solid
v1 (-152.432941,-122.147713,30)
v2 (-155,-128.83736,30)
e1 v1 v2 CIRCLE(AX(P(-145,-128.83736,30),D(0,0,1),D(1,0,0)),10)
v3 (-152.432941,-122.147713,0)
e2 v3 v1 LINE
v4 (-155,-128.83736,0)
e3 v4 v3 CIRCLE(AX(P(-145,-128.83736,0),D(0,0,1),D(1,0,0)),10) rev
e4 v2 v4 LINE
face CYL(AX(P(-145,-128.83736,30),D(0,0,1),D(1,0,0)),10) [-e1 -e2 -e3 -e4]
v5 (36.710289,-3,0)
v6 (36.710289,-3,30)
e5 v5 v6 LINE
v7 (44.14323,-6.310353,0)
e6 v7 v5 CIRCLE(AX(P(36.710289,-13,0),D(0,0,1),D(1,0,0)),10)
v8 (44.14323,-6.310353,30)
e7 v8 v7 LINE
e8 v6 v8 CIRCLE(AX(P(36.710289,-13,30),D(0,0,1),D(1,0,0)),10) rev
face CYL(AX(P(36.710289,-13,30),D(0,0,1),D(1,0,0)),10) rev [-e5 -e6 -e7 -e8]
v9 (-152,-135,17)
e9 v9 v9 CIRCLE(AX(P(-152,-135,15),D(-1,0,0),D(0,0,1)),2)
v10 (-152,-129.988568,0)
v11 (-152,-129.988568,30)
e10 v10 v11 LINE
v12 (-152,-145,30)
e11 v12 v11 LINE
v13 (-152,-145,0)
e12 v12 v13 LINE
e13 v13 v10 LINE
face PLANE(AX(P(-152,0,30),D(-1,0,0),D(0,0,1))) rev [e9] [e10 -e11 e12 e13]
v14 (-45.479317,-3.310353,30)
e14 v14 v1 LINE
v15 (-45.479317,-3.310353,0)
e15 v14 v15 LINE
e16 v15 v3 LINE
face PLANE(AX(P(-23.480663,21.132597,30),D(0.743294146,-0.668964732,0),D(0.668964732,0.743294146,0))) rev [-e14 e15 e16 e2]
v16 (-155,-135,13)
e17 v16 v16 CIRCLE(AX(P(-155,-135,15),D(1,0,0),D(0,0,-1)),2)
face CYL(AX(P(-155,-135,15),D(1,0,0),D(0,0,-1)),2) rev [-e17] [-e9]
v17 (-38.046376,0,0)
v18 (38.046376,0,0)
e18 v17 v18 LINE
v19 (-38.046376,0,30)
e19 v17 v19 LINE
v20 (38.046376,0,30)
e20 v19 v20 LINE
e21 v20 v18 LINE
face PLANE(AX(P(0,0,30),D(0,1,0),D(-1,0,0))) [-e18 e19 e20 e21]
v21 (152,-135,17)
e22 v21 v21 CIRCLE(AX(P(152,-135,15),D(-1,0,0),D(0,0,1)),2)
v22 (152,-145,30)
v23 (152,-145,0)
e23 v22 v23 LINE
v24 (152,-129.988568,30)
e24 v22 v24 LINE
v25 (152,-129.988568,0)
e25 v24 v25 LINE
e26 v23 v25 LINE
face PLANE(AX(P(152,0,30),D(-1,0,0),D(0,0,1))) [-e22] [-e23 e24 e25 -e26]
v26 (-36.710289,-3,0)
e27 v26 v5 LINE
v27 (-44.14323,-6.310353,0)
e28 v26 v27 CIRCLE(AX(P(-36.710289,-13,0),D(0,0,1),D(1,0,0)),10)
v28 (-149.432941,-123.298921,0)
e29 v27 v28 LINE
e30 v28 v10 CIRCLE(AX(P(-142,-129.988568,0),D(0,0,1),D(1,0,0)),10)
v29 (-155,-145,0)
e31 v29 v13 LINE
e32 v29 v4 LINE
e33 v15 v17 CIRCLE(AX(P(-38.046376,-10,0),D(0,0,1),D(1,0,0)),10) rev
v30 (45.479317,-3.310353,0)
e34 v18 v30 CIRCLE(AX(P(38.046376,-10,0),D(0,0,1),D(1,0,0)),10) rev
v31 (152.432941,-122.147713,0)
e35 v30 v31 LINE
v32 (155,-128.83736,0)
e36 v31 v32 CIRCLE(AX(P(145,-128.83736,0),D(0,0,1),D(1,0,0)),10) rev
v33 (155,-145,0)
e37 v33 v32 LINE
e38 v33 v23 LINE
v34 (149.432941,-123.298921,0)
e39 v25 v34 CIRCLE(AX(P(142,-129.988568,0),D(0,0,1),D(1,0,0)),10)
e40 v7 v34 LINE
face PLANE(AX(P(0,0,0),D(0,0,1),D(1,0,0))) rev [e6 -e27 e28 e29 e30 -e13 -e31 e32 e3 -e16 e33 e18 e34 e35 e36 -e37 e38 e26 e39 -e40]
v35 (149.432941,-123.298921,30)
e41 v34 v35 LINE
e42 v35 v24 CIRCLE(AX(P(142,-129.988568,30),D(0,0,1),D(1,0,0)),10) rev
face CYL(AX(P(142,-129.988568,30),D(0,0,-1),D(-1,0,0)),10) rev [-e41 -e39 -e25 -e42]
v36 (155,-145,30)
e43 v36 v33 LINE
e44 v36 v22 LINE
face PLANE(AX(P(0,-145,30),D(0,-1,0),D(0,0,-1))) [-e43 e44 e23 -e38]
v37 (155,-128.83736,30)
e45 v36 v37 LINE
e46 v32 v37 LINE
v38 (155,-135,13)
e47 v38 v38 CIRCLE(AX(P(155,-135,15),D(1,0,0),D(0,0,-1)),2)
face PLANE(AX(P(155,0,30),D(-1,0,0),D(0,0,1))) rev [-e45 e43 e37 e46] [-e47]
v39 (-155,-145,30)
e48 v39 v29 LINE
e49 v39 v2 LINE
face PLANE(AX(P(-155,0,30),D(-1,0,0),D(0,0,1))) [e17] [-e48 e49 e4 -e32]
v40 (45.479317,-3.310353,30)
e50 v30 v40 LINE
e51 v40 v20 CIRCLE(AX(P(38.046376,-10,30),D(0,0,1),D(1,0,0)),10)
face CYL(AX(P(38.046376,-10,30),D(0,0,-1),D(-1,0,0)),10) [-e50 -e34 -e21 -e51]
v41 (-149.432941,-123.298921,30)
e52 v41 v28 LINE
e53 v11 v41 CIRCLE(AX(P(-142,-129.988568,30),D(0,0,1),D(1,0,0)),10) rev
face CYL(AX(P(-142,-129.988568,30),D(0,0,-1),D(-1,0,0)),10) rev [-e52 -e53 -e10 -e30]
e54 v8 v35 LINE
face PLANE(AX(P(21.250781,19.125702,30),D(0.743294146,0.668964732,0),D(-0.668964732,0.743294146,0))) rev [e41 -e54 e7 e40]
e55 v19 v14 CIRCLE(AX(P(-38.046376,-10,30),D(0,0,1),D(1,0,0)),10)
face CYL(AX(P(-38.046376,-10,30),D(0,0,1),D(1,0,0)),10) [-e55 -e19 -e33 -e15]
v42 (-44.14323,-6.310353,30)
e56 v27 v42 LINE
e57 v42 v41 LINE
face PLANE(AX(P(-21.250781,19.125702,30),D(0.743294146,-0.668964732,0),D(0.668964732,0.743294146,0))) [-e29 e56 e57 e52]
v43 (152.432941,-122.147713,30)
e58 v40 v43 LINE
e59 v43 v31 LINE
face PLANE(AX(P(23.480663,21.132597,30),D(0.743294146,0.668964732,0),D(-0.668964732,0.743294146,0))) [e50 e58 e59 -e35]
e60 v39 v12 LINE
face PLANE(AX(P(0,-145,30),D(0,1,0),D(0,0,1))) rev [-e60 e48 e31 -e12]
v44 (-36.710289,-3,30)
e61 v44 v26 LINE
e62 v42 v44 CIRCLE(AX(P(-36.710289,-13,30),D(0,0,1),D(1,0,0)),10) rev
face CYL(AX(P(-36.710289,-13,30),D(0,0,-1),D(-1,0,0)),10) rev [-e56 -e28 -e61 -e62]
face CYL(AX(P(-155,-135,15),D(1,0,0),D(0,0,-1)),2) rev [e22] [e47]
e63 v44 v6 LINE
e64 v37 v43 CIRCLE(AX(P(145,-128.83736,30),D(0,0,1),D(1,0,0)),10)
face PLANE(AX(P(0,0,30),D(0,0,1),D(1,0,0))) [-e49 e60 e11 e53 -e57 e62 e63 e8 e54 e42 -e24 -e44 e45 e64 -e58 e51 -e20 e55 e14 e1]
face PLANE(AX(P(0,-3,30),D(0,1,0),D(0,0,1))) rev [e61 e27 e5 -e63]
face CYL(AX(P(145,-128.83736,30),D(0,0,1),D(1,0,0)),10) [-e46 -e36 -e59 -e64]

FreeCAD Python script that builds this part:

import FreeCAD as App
import Part
import Sketcher


def edges_at(feature, points):
    """Names of the edges that pass closest to the given points."""
    edges = feature.Shape.Edges
    near = lambda p: min(range(len(edges)), key=lambda i: edges[i].distToShape(Part.Vertex(*p))[0])
    return sorted({f"Edge{near(p) + 1}" for p in points})

doc = App.newDocument("Part")
params = doc.addObject("Spreadsheet::Sheet", "Params")
for row, (alias, value) in enumerate([
    ("sketch1_width", "3 mm"),
    ("sketch1_width2", "85 mm"),
    ("sketch1_height", "20 mm"),
    ("pad1_length", "30 mm"),
    ("fillet_radius", "10 mm"),
    ("sketch2_diameter", "4 mm"),
], start=1):
    params.set(f"A{row}", alias)
    params.set(f"B{row}", "=" + value)
    params.setAlias(f"B{row}", alias)

body = doc.addObject("PartDesign::Body", "Body")

sketch1 = doc.addObject("Sketcher::SketchObject", "Sketch")
body.addObject(sketch1)
sketch1.AttachmentSupport = (doc.XY_Plane, [""])
sketch1.MapMode = "FlatFace"
sketch1.addGeometry([
    Part.LineSegment(App.Vector(152, -145, 0), App.Vector(155, -145, 0)),
    Part.LineSegment(App.Vector(155, -145, 0), App.Vector(155, -125, 0)),
    Part.LineSegment(App.Vector(155, -125, 0), App.Vector(42.5, 0, 0)),
    Part.LineSegment(App.Vector(42.5, 0, 0), App.Vector(-42.5, 0, 0)),
    Part.LineSegment(App.Vector(-42.5, 0, 0), App.Vector(-155, -125, 0)),
    Part.LineSegment(App.Vector(-155, -125, 0), App.Vector(-155, -145, 0)),
    Part.LineSegment(App.Vector(-155, -145, 0), App.Vector(-152, -145, 0)),
    Part.LineSegment(App.Vector(-152, -145, 0), App.Vector(-152, -126.2, 0)),
    Part.LineSegment(App.Vector(-152, -126.2, 0), App.Vector(-41.2, -3, 0)),
    Part.LineSegment(App.Vector(-41.2, -3, 0), App.Vector(41.2, -3, 0)),
    Part.LineSegment(App.Vector(41.2, -3, 0), App.Vector(152, -126.2, 0)),
    Part.LineSegment(App.Vector(152, -126.2, 0), App.Vector(152, -145, 0)),
], False)
sketch1.addConstraint([
    Sketcher.Constraint("Coincident", 0, 2, 1, 1),
    Sketcher.Constraint("Coincident", 1, 2, 2, 1),
    Sketcher.Constraint("Coincident", 2, 2, 3, 1),
    Sketcher.Constraint("Coincident", 3, 2, 4, 1),
    Sketcher.Constraint("Coincident", 4, 2, 5, 1),
    Sketcher.Constraint("Coincident", 5, 2, 6, 1),
    Sketcher.Constraint("Coincident", 6, 2, 7, 1),
    Sketcher.Constraint("Coincident", 7, 2, 8, 1),
    Sketcher.Constraint("Coincident", 8, 2, 9, 1),
    Sketcher.Constraint("Coincident", 9, 2, 10, 1),
    Sketcher.Constraint("Coincident", 10, 2, 11, 1),
    Sketcher.Constraint("Coincident", 11, 2, 0, 1),
    Sketcher.Constraint("Horizontal", 0),
    Sketcher.Constraint("Vertical", 1),
    Sketcher.Constraint("Horizontal", 3),
    Sketcher.Constraint("Vertical", 5),
    Sketcher.Constraint("Horizontal", 6),
    Sketcher.Constraint("Vertical", 7),
    Sketcher.Constraint("Horizontal", 9),
    Sketcher.Constraint("Vertical", 11),
    Sketcher.Constraint("Symmetric", 2, 2, 3, 2, -1, 1),
    Sketcher.Constraint("Symmetric", 1, 2, 4, 2, -2),
    Sketcher.Constraint("Symmetric", 7, 2, 10, 2, -2),
    Sketcher.Constraint("Parallel", 4, 8),
    Sketcher.Constraint("Parallel", 2, 10),
    Sketcher.Constraint("Horizontal", 0, 2, 5, 2),
    Sketcher.Constraint("DistanceX", 0, 1, 0, 2, 3.0),
    Sketcher.Constraint("DistanceX", 3, 2, 3, 1, 85.0),
    Sketcher.Constraint("DistanceY", 1, 1, 1, 2, 20.0),
    Sketcher.Constraint("DistanceX", -1, 1, 0, 2, 155.0),
    Sketcher.Constraint("DistanceY", 0, 2, -1, 1, 145.0),
    Sketcher.Constraint("DistanceY", 8, 2, -1, 1, 3.0),
    Sketcher.Constraint("DistanceY", 7, 1, 7, 2, 18.848792),
])
sketch1.setExpression("Constraints[26]", "Params.sketch1_width")
sketch1.setExpression("Constraints[27]", "Params.sketch1_width2")
sketch1.setExpression("Constraints[28]", "Params.sketch1_height")
pad1 = doc.addObject("PartDesign::Pad", "Pad")
body.addObject(pad1)
pad1.Profile = sketch1
pad1.setExpression("Length", "Params.pad1_length")
doc.recompute()

fillet = doc.addObject("PartDesign::Fillet", "Fillet")
body.addObject(fillet)
fillet.Base = (pad1, edges_at(pad1, [
    (152, -126.151, 15),
    (41.164, -3, 15),
    (-41.164, -3, 15),
    (-152, -126.151, 15),
    (-155, -125, 15),
    (-42.5, 0, 15),
    (42.5, 0, 15),
    (155, -125, 15),
]))
fillet.setExpression("Radius", "Params.fillet_radius")

sketch2 = doc.addObject("Sketcher::SketchObject", "Sketch001")
body.addObject(sketch2)
sketch2.AttachmentSupport = (doc.YZ_Plane, [""])
sketch2.MapMode = "FlatFace"
sketch2.AttachmentOffset = App.Placement(App.Vector(0, 0, 155), App.Rotation())
sketch2.addGeometry(Part.Circle(App.Vector(-135, 15, 0), App.Vector(0, 0, 1), 2), False)
sketch2.addConstraint([
    Sketcher.Constraint("Diameter", 0, 4.0),
    Sketcher.Constraint("DistanceX", 0, 3, -1, 1, 135.0),
    Sketcher.Constraint("DistanceY", -1, 1, 0, 3, 15.0),
])
sketch2.setExpression("Constraints[0]", "Params.sketch2_diameter")
pocket1 = doc.addObject("PartDesign::Pocket", "Pocket")
body.addObject(pocket1)
pocket1.Profile = sketch2
pocket1.Type = "ThroughAll"
pocket1.Midplane = True

doc.recompute()
